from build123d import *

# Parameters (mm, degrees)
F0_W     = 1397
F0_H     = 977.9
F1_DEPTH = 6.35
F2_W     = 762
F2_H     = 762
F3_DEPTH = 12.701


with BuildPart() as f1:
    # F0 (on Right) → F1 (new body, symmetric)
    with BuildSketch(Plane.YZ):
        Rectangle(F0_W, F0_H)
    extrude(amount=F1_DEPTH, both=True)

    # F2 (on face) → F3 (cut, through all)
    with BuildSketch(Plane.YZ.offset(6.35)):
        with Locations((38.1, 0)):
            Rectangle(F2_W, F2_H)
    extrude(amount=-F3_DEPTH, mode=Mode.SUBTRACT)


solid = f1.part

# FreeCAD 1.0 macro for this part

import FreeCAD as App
import Part
import Sketcher
from FreeCAD import Vector
Q = App.Units.Quantity

doc = App.newDocument("Part")
body = doc.addObject("PartDesign::Body", "Body")

# Sketch on YZ plane
sketch1 = body.newObject("Sketcher::SketchObject", "Sketch")
sketch1.AttachmentSupport = (doc.getObject("YZ_Plane"), [""])
sketch1.MapMode = "FlatFace"
sketch1.addGeometry([
    Part.LineSegment(Vector(-698, 489, 0), Vector(-698, -489, 0)),
    Part.LineSegment(Vector(-698, -489, 0), Vector(698, -489, 0)),
    Part.LineSegment(Vector(698, -489, 0), Vector(698, 489, 0)),
    Part.LineSegment(Vector(698, 489, 0), Vector(-698, 489, 0)),
], False)
sketch1.addConstraint([
    Sketcher.Constraint("Coincident", 0, 2, 1, 1),
    Sketcher.Constraint("Coincident", 1, 2, 2, 1),
    Sketcher.Constraint("Coincident", 2, 2, 3, 1),
    Sketcher.Constraint("Coincident", 3, 2, 0, 1),
    Sketcher.Constraint("Vertical", 0),
    Sketcher.Constraint("Horizontal", 1),
    Sketcher.Constraint("Vertical", 2),
    Sketcher.Constraint("Horizontal", 3),
    Sketcher.Constraint("Symmetric", 0, 2, 2, 2, -1, 1),
    Sketcher.Constraint("DistanceX", 1, 1, 1, 2, Q("55 in")),
    Sketcher.Constraint("DistanceY", 0, 2, 0, 1, Q("38.5 in")),
])
pad1 = body.newObject("PartDesign::Pad", "Pad")
pad1.Profile = sketch1
pad1.Length = Q("0.5 in")
pad1.Midplane = True

# Sketch on YZ plane
sketch2 = body.newObject("Sketcher::SketchObject", "Sketch001")
sketch2.AttachmentSupport = (doc.getObject("YZ_Plane"), [""])
sketch2.MapMode = "FlatFace"
sketch2.AttachmentOffset = App.Placement(Vector(0, 0, 0.25 * 25.4), App.Rotation())
sketch2.addGeometry([
    Part.LineSegment(Vector(-343, 381, 0), Vector(-343, -381, 0)),
    Part.LineSegment(Vector(-343, -381, 0), Vector(419, -381, 0)),
    Part.LineSegment(Vector(419, -381, 0), Vector(419, 381, 0)),
    Part.LineSegment(Vector(419, 381, 0), Vector(-343, 381, 0)),
], False)
sketch2.addConstraint([
    Sketcher.Constraint("Coincident", 0, 2, 1, 1),
    Sketcher.Constraint("Coincident", 1, 2, 2, 1),
    Sketcher.Constraint("Coincident", 2, 2, 3, 1),
    Sketcher.Constraint("Coincident", 3, 2, 0, 1),
    Sketcher.Constraint("Vertical", 0),
    Sketcher.Constraint("Horizontal", 1),
    Sketcher.Constraint("Vertical", 2),
    Sketcher.Constraint("Horizontal", 3),
    Sketcher.Constraint("Equal", 3, 0),
    Sketcher.Constraint("DistanceX", 1, 1, 1, 2, Q("30 in")),
    Sketcher.Constraint("DistanceY", 0, 2, -1, 1, Q("15 in")),
    Sketcher.Constraint("DistanceX", 0, 2, -1, 1, Q("13.5 in")),
])
pocket1 = body.newObject("PartDesign::Pocket", "Pocket")
pocket1.Profile = sketch2
pocket1.Type = "ThroughAll"

doc.recompute()
